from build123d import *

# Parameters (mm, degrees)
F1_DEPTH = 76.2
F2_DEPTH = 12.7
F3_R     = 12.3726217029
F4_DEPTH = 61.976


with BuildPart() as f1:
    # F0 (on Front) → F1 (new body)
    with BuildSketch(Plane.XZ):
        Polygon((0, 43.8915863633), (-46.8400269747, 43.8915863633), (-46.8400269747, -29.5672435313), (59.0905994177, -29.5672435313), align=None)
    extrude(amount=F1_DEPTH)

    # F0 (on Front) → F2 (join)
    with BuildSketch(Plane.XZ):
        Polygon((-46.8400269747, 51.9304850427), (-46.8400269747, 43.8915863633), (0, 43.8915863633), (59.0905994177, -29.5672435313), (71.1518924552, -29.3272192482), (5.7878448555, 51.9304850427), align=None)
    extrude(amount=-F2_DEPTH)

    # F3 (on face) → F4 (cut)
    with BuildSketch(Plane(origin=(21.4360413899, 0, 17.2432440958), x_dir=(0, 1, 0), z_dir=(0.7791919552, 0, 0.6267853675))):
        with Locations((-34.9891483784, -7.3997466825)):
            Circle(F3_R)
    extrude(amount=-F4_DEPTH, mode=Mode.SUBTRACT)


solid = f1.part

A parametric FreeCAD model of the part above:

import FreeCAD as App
import Part
import Sketcher
from FreeCAD import Vector
Q = App.Units.Quantity

doc = App.newDocument("Part")
body = doc.addObject("PartDesign::Body", "Body")
body.AllowCompound = True

sketch1 = body.newObject("Sketcher::SketchObject", "Sketch")
sketch1.AttachmentSupport = (doc.getObject("XZ_Plane"), [""])
sketch1.MapMode = "FlatFace"
sketch1.addGeometry(Part.LineSegment(Vector(0, 43.891586, 0), Vector(-46.840027, 43.891586, 0)), False)
sketch1.addGeometry(Part.LineSegment(Vector(-46.840027, 43.891586, 0), Vector(-46.840027, -29.567244, 0)), False)
sketch1.addGeometry(Part.LineSegment(Vector(-46.840027, -29.567244, 0), Vector(59.090599, -29.567244, 0)), False)
sketch1.addGeometry(Part.LineSegment(Vector(59.090599, -29.567244, 0), Vector(0, 43.891586, 0)), False)
sketch1.addConstraint(Sketcher.Constraint("Coincident", 0, 2, 1, 1))
sketch1.addConstraint(Sketcher.Constraint("Coincident", 1, 2, 2, 1))
sketch1.addConstraint(Sketcher.Constraint("Coincident", 2, 2, 3, 1))
sketch1.addConstraint(Sketcher.Constraint("Coincident", 3, 2, 0, 1))
sketch1.addConstraint(Sketcher.Constraint("Horizontal", 0))
sketch1.addConstraint(Sketcher.Constraint("Vertical", 1))
sketch1.addConstraint(Sketcher.Constraint("Horizontal", 2))
sketch1.addConstraint(Sketcher.Constraint("PointOnObject", 3, 2, -2))
sketch1.addConstraint(Sketcher.Constraint("DistanceY", 1, 2, 1, 1, 73.45883))
sketch1.addConstraint(Sketcher.Constraint("DistanceX", -1, 1, 2, 2, 59.090599))
sketch1.addConstraint(Sketcher.Constraint("DistanceX", 0, 2, 0, 1, 46.840027))
sketch1.addConstraint(Sketcher.Constraint("DistanceY", -1, 1, 0, 2, 43.891586))
pad1 = body.newObject("PartDesign::Pad", "Pad")
pad1.Profile = sketch1
pad1.Length = Q("3 in")

sketch2 = body.newObject("Sketcher::SketchObject", "Sketch001")
sketch2.AttachmentSupport = (doc.getObject("XZ_Plane"), [""])
sketch2.MapMode = "FlatFace"
sketch2.addGeometry(Part.LineSegment(Vector(-46.840027, 51.930485, 0), Vector(-46.840027, 43.891586, 0)), False)
sketch2.addGeometry(Part.LineSegment(Vector(-46.840027, 43.891586, 0), Vector(0, 43.891586, 0)), False)
sketch2.addGeometry(Part.LineSegment(Vector(0, 43.891586, 0), Vector(59.090599, -29.567244, 0)), False)
sketch2.addGeometry(Part.LineSegment(Vector(59.090599, -29.567244, 0), Vector(71.151892, -29.327219, 0)), False)
sketch2.addGeometry(Part.LineSegment(Vector(71.151892, -29.327219, 0), Vector(5.787845, 51.930485, 0)), False)
sketch2.addGeometry(Part.LineSegment(Vector(5.787845, 51.930485, 0), Vector(-46.840027, 51.930485, 0)), False)
sketch2.addConstraint(Sketcher.Constraint("Coincident", 0, 2, 1, 1))
sketch2.addConstraint(Sketcher.Constraint("Coincident", 1, 2, 2, 1))
sketch2.addConstraint(Sketcher.Constraint("Coincident", 2, 2, 3, 1))
sketch2.addConstraint(Sketcher.Constraint("Coincident", 3, 2, 4, 1))
sketch2.addConstraint(Sketcher.Constraint("Coincident", 4, 2, 5, 1))
sketch2.addConstraint(Sketcher.Constraint("Coincident", 5, 2, 0, 1))
sketch2.addConstraint(Sketcher.Constraint("Vertical", 0))
sketch2.addConstraint(Sketcher.Constraint("Horizontal", 1))
sketch2.addConstraint(Sketcher.Constraint("Horizontal", 5))
sketch2.addConstraint(Sketcher.Constraint("PointOnObject", 1, 2, -2))
sketch2.addConstraint(Sketcher.Constraint("Parallel", 2, 4))
sketch2.addConstraint(Sketcher.Constraint("DistanceY", 0, 2, 0, 1, 8.038899))
sketch2.addConstraint(Sketcher.Constraint("DistanceX", 5, 2, 5, 1, 52.627872))
sketch2.addConstraint(Sketcher.Constraint("DistanceX", -1, 1, 2, 2, 59.090599))
sketch2.addConstraint(Sketcher.Constraint("Distance", 3, 12.063681))
sketch2.addConstraint(Sketcher.Constraint("Distance", 4, 104.284578))
sketch2.addConstraint(Sketcher.Constraint("DistanceX", 1, 1, 1, 2, 46.840027))
sketch2.addConstraint(Sketcher.Constraint("DistanceY", 3, 2, -1, 1, 29.327219))
pad2 = body.newObject("PartDesign::Pad", "Pad001")
pad2.Profile = sketch2
pad2.Length = Q("0.5 in")
pad2.Reversed = True

sketch3 = body.newObject("Sketcher::SketchObject", "Sketch002")
sketch3.Placement = App.Placement(Vector(21.436041, 0, 17.243244), App.Rotation(Vector(0, 1, 0), Vector(-0.626785368, 0, 0.779191955), Vector(0.779191955, 0, 0.626785368), "ZXY"))
sketch3.addGeometry(Part.Circle(Vector(-34.989148, -7.399747, 0), Vector(0, 0, 1), 12.372622), False)
sketch3.addConstraint(Sketcher.Constraint("Diameter", 0, 24.745243))
sketch3.addConstraint(Sketcher.Constraint("DistanceX", 0, 3, -1, 1, 34.989148))
sketch3.addConstraint(Sketcher.Constraint("DistanceY", 0, 3, -1, 1, 7.399747))
pocket1 = body.newObject("PartDesign::Pocket", "Pocket")
pocket1.Profile = sketch3
pocket1.Length = Q("2.44 in")

doc.recompute()
